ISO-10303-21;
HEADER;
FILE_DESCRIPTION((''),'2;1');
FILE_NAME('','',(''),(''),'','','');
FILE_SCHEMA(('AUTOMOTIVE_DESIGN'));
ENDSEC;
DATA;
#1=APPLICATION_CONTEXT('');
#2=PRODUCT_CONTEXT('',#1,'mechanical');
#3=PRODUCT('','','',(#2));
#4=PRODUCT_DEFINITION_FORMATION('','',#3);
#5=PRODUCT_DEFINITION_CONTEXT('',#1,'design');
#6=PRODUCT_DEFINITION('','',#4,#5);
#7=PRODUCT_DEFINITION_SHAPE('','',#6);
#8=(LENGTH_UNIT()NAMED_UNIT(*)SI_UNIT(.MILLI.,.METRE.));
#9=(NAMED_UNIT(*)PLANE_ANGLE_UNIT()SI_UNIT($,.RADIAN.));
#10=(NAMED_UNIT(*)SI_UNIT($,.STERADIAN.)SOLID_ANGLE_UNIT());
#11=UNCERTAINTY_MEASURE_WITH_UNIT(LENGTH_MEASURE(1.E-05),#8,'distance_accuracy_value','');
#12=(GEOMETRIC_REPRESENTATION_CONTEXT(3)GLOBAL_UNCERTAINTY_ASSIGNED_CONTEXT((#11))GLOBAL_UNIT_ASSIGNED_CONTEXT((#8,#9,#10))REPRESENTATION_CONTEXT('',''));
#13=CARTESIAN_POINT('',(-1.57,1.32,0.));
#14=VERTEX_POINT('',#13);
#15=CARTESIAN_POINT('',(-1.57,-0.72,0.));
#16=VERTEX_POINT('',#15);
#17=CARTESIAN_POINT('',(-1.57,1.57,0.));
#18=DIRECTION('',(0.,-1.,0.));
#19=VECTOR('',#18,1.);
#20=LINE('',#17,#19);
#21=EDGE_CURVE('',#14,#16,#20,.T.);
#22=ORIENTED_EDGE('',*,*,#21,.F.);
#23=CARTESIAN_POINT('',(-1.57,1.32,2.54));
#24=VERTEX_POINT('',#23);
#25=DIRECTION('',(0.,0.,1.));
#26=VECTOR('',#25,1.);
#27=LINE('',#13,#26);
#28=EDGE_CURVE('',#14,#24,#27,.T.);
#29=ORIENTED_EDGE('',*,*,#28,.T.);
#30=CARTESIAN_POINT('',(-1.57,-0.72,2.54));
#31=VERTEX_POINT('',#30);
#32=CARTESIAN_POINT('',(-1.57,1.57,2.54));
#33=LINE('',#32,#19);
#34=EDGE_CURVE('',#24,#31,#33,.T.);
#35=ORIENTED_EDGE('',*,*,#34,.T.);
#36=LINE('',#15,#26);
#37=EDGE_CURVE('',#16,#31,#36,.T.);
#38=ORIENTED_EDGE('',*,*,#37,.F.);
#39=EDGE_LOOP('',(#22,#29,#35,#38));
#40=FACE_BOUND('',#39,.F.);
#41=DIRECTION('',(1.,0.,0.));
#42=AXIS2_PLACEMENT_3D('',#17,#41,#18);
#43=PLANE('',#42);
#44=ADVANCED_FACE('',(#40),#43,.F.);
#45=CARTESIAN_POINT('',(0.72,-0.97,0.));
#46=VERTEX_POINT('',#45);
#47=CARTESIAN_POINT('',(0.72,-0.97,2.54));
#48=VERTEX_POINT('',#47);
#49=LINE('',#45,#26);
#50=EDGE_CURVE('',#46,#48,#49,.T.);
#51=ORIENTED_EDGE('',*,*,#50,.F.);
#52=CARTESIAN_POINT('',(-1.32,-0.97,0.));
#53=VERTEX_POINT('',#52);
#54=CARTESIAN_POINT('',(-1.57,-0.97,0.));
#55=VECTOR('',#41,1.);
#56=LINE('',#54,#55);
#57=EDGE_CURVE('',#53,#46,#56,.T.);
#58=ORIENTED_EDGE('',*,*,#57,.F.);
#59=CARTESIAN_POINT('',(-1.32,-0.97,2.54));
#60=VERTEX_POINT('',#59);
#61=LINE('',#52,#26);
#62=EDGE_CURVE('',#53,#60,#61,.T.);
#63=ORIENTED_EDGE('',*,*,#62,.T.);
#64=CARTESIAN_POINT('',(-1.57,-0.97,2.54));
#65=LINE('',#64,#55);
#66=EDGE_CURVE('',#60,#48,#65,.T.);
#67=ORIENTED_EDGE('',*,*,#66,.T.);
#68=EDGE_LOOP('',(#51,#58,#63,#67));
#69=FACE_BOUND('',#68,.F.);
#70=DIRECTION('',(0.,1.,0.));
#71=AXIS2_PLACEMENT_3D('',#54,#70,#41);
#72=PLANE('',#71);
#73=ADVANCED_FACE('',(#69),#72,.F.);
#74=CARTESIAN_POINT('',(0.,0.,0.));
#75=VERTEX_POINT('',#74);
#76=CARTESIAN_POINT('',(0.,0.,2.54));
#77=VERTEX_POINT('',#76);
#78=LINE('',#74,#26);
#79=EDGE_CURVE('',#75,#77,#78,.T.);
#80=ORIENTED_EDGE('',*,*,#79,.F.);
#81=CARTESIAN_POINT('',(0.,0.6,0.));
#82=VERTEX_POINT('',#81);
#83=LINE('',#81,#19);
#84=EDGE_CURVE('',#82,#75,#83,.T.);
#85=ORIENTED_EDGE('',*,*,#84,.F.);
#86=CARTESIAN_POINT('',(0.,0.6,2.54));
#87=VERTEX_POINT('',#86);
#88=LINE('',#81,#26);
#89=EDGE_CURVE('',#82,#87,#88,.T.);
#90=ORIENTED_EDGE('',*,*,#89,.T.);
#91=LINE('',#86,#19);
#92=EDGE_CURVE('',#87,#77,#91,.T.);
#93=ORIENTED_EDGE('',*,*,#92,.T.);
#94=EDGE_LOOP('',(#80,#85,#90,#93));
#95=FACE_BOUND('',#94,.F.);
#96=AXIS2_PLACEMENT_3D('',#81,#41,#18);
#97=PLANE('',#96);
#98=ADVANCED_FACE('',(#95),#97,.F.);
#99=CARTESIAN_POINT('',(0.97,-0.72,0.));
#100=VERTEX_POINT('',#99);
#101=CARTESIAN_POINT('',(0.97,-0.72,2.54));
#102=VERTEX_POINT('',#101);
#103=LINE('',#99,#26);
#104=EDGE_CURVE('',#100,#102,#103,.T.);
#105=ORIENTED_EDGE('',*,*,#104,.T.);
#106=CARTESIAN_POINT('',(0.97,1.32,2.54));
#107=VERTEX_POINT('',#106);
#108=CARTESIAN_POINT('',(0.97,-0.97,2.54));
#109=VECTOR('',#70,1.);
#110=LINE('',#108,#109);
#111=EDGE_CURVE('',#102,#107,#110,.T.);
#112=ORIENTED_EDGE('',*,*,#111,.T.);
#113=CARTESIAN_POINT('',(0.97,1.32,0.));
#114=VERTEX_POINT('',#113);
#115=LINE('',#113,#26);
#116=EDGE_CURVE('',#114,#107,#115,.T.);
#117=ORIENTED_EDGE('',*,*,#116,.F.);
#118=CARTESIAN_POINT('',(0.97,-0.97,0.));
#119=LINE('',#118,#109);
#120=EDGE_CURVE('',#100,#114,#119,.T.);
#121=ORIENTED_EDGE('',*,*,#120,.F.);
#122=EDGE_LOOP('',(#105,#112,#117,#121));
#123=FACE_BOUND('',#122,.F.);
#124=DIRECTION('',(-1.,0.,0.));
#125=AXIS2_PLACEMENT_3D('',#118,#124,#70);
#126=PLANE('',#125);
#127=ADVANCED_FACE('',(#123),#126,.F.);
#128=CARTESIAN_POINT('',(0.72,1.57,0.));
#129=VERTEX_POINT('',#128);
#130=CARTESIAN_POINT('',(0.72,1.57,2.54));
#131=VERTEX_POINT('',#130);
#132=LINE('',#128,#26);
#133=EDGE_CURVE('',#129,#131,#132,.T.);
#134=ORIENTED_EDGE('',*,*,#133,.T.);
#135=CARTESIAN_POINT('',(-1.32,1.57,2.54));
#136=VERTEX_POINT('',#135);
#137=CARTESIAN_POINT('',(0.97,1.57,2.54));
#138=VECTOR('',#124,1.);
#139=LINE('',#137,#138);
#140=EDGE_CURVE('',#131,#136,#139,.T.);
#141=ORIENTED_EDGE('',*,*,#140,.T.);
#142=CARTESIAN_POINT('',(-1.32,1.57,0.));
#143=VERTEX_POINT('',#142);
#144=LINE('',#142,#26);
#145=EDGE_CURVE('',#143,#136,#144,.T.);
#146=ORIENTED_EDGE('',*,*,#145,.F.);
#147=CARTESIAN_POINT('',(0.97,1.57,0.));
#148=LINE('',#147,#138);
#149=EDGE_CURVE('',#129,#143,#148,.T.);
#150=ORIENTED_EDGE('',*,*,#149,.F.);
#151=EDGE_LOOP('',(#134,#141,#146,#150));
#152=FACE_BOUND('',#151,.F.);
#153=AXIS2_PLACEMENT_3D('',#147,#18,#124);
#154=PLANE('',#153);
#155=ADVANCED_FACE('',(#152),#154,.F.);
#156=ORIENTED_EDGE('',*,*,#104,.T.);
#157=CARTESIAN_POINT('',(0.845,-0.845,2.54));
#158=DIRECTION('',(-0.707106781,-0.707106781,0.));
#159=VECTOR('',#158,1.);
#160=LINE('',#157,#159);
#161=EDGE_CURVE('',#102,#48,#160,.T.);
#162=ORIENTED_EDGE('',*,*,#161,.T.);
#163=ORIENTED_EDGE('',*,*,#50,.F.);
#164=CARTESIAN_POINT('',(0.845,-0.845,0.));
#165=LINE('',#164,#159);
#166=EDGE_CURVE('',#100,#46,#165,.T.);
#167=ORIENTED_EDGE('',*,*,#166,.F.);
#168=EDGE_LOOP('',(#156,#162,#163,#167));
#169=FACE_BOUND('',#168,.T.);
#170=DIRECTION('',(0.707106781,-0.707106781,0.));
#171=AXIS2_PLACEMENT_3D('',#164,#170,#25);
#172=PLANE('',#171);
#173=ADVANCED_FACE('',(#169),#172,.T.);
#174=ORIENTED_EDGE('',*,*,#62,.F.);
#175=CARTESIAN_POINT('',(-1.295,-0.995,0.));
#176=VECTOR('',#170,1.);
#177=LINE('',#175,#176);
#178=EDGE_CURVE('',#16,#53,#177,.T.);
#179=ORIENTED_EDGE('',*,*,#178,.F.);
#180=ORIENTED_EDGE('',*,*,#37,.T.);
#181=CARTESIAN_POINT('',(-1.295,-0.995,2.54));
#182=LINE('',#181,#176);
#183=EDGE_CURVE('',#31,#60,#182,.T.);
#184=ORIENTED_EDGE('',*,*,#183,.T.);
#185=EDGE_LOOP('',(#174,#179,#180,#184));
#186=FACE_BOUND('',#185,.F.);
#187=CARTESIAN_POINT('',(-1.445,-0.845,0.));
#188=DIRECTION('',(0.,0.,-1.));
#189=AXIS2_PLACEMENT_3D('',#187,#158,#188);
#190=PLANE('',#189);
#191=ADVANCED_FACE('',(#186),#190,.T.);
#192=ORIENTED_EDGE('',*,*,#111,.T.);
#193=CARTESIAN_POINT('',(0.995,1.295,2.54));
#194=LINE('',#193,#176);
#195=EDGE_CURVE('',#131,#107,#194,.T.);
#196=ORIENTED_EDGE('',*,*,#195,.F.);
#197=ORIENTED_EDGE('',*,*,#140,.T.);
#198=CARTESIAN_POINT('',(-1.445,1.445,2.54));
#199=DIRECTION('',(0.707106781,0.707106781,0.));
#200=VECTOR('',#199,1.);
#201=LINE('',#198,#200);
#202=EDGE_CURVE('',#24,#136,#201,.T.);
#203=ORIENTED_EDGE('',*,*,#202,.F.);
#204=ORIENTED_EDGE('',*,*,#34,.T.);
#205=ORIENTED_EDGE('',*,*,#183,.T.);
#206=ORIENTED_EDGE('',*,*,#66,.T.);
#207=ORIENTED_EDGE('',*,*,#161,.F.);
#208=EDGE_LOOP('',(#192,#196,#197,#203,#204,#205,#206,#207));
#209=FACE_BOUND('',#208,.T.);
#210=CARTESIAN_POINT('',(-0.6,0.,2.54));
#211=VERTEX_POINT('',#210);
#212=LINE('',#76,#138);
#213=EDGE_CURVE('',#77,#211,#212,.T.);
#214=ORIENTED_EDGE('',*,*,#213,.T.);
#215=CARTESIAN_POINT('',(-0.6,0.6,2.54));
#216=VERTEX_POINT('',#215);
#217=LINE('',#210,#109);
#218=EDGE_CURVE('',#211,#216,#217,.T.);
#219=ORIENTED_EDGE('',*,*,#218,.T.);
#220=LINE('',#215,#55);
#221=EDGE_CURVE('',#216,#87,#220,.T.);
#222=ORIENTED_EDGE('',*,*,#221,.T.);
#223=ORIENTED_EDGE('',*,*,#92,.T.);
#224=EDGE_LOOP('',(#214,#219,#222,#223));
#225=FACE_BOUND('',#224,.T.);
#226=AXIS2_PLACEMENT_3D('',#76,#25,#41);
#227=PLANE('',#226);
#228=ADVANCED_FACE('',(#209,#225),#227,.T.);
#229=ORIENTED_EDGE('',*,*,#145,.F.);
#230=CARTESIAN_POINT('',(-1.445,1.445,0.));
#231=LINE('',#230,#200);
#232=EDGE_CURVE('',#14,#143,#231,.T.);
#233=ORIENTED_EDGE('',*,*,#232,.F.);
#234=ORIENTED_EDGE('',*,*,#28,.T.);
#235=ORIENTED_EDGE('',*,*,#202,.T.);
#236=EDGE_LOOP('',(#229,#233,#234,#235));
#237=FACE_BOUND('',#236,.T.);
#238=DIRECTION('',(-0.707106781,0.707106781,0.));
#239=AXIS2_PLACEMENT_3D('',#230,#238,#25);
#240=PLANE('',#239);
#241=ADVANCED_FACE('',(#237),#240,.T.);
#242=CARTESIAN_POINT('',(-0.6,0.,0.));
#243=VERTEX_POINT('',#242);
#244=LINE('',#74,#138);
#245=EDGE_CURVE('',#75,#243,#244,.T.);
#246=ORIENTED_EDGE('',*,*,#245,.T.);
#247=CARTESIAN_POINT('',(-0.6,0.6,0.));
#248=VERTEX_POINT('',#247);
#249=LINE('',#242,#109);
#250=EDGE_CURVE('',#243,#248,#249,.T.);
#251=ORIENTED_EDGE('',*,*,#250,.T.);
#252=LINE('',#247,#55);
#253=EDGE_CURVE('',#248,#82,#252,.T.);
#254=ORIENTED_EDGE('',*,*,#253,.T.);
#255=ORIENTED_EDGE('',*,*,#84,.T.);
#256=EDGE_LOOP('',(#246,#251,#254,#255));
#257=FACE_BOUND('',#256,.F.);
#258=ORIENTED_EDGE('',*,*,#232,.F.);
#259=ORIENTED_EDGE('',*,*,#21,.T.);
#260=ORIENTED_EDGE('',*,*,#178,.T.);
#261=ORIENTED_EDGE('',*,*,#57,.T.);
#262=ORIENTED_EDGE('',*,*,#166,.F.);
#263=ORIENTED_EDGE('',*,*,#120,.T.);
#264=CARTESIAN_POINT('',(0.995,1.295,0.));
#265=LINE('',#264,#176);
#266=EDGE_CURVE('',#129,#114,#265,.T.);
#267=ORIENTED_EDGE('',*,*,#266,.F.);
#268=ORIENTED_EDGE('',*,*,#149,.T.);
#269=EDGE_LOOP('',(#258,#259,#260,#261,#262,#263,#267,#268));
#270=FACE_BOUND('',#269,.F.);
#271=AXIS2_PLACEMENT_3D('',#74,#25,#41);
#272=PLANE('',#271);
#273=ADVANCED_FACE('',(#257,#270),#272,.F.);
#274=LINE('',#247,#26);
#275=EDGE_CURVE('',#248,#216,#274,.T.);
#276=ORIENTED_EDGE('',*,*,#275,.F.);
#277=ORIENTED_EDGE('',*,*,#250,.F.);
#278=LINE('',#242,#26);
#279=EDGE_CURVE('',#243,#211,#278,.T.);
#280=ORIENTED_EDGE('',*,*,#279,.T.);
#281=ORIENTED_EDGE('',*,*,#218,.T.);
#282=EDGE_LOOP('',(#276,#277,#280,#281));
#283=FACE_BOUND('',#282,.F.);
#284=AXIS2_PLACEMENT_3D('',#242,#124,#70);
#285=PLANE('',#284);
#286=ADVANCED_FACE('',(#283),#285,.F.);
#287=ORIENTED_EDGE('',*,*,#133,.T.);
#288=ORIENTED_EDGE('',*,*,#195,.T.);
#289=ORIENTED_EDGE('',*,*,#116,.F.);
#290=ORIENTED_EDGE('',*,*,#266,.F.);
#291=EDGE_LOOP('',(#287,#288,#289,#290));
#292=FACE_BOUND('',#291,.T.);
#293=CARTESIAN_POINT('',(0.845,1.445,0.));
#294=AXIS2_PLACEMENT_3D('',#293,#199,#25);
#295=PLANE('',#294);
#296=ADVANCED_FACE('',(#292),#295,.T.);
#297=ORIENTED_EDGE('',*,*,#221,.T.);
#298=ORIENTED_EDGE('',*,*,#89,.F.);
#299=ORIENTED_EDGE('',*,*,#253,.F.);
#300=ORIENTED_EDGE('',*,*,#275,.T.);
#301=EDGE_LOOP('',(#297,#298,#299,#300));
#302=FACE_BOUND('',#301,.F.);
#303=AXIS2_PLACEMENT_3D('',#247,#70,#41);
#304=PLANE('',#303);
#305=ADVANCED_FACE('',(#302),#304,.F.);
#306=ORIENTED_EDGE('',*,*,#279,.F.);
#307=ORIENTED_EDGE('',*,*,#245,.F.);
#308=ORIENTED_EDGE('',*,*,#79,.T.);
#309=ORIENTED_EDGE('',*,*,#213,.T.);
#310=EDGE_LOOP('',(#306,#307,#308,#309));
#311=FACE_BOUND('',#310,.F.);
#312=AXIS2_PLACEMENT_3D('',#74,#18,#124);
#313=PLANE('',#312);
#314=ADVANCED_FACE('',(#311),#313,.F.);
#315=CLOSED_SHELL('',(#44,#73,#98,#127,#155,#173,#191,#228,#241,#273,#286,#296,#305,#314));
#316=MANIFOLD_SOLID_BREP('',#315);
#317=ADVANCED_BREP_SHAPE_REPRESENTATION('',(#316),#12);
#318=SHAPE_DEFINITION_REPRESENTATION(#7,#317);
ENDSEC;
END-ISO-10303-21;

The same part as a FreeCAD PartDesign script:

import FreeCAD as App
import Part
import Sketcher

V = App.Vector


def edges_at(feature, points):
    """Names of the edges that pass closest to the given points."""
    edges = feature.Shape.Edges
    near = lambda p: min(range(len(edges)), key=lambda i: edges[i].distToShape(Part.Vertex(*p))[0])
    return sorted({f"Edge{near(p) + 1}" for p in points})

doc = App.newDocument("Part")
body = doc.addObject("PartDesign::Body", "Body")

# Sketch on XY plane
sketch1 = body.newObject("Sketcher::SketchObject", "Sketch")
sketch1.AttachmentSupport = (doc.getObject("XY_Plane"), [""])
sketch1.MapMode = "FlatFace"
sketch1.addGeometry([
    Part.LineSegment(V(-1.57, 1.57, 0), V(-1.57, -0.97, 0)),  # 0
    Part.LineSegment(V(-1.57, -0.97, 0), V(0.97, -0.97, 0)),  # 1
    Part.LineSegment(V(0.97, -0.97, 0), V(0.97, 1.57, 0)),  # 2
    Part.LineSegment(V(0.97, 1.57, 0), V(-1.57, 1.57, 0)),  # 3
    Part.LineSegment(V(0, 0.6, 0), V(0, 0, 0)),  # 4
    Part.LineSegment(V(0, 0, 0), V(-0.6, 0, 0)),  # 5
    Part.LineSegment(V(-0.6, 0, 0), V(-0.6, 0.6, 0)),  # 6
    Part.LineSegment(V(-0.6, 0.6, 0), V(0, 0.6, 0)),  # 7
], False)
sketch1.addConstraint([
    Sketcher.Constraint("Coincident", 0, 2, 1, 1),
    Sketcher.Constraint("Coincident", 1, 2, 2, 1),
    Sketcher.Constraint("Coincident", 2, 2, 3, 1),
    Sketcher.Constraint("Coincident", 3, 2, 0, 1),
    Sketcher.Constraint("Coincident", 4, 2, 5, 1),
    Sketcher.Constraint("Coincident", 5, 2, 6, 1),
    Sketcher.Constraint("Coincident", 6, 2, 7, 1),
    Sketcher.Constraint("Coincident", 7, 2, 4, 1),
    Sketcher.Constraint("Vertical", 0),
    Sketcher.Constraint("Horizontal", 1),
    Sketcher.Constraint("Vertical", 2),
    Sketcher.Constraint("Horizontal", 3),
    Sketcher.Constraint("Vertical", 4),
    Sketcher.Constraint("Horizontal", 5),
    Sketcher.Constraint("Vertical", 6),
    Sketcher.Constraint("Horizontal", 7),
    Sketcher.Constraint("Coincident", 4, 2, -1, 1),
    Sketcher.Constraint("Equal", 3, 0),
    Sketcher.Constraint("Equal", 7, 4),
    Sketcher.Constraint("DistanceX", 1, 1, 1, 2, 2.54),
    Sketcher.Constraint("DistanceX", 5, 2, 5, 1, 0.6),
    Sketcher.Constraint("DistanceX", 0, 2, -1, 1, 1.57),
    Sketcher.Constraint("DistanceY", 0, 2, -1, 1, 0.97),
])
pad1 = body.newObject("PartDesign::Pad", "Pad")
pad1.Profile = sketch1
pad1.Length = 2.54
doc.recompute()

chamfer = body.newObject("PartDesign::Chamfer", "Chamfer")
chamfer.Base = (pad1, edges_at(pad1, [
    (-1.57, -0.97, 1.27),
    (0.97, -0.97, 1.27),
    (0.97, 1.57, 1.27),
    (-1.57, 1.57, 1.27),
]))
chamfer.Size = 0.25

doc.recompute()
